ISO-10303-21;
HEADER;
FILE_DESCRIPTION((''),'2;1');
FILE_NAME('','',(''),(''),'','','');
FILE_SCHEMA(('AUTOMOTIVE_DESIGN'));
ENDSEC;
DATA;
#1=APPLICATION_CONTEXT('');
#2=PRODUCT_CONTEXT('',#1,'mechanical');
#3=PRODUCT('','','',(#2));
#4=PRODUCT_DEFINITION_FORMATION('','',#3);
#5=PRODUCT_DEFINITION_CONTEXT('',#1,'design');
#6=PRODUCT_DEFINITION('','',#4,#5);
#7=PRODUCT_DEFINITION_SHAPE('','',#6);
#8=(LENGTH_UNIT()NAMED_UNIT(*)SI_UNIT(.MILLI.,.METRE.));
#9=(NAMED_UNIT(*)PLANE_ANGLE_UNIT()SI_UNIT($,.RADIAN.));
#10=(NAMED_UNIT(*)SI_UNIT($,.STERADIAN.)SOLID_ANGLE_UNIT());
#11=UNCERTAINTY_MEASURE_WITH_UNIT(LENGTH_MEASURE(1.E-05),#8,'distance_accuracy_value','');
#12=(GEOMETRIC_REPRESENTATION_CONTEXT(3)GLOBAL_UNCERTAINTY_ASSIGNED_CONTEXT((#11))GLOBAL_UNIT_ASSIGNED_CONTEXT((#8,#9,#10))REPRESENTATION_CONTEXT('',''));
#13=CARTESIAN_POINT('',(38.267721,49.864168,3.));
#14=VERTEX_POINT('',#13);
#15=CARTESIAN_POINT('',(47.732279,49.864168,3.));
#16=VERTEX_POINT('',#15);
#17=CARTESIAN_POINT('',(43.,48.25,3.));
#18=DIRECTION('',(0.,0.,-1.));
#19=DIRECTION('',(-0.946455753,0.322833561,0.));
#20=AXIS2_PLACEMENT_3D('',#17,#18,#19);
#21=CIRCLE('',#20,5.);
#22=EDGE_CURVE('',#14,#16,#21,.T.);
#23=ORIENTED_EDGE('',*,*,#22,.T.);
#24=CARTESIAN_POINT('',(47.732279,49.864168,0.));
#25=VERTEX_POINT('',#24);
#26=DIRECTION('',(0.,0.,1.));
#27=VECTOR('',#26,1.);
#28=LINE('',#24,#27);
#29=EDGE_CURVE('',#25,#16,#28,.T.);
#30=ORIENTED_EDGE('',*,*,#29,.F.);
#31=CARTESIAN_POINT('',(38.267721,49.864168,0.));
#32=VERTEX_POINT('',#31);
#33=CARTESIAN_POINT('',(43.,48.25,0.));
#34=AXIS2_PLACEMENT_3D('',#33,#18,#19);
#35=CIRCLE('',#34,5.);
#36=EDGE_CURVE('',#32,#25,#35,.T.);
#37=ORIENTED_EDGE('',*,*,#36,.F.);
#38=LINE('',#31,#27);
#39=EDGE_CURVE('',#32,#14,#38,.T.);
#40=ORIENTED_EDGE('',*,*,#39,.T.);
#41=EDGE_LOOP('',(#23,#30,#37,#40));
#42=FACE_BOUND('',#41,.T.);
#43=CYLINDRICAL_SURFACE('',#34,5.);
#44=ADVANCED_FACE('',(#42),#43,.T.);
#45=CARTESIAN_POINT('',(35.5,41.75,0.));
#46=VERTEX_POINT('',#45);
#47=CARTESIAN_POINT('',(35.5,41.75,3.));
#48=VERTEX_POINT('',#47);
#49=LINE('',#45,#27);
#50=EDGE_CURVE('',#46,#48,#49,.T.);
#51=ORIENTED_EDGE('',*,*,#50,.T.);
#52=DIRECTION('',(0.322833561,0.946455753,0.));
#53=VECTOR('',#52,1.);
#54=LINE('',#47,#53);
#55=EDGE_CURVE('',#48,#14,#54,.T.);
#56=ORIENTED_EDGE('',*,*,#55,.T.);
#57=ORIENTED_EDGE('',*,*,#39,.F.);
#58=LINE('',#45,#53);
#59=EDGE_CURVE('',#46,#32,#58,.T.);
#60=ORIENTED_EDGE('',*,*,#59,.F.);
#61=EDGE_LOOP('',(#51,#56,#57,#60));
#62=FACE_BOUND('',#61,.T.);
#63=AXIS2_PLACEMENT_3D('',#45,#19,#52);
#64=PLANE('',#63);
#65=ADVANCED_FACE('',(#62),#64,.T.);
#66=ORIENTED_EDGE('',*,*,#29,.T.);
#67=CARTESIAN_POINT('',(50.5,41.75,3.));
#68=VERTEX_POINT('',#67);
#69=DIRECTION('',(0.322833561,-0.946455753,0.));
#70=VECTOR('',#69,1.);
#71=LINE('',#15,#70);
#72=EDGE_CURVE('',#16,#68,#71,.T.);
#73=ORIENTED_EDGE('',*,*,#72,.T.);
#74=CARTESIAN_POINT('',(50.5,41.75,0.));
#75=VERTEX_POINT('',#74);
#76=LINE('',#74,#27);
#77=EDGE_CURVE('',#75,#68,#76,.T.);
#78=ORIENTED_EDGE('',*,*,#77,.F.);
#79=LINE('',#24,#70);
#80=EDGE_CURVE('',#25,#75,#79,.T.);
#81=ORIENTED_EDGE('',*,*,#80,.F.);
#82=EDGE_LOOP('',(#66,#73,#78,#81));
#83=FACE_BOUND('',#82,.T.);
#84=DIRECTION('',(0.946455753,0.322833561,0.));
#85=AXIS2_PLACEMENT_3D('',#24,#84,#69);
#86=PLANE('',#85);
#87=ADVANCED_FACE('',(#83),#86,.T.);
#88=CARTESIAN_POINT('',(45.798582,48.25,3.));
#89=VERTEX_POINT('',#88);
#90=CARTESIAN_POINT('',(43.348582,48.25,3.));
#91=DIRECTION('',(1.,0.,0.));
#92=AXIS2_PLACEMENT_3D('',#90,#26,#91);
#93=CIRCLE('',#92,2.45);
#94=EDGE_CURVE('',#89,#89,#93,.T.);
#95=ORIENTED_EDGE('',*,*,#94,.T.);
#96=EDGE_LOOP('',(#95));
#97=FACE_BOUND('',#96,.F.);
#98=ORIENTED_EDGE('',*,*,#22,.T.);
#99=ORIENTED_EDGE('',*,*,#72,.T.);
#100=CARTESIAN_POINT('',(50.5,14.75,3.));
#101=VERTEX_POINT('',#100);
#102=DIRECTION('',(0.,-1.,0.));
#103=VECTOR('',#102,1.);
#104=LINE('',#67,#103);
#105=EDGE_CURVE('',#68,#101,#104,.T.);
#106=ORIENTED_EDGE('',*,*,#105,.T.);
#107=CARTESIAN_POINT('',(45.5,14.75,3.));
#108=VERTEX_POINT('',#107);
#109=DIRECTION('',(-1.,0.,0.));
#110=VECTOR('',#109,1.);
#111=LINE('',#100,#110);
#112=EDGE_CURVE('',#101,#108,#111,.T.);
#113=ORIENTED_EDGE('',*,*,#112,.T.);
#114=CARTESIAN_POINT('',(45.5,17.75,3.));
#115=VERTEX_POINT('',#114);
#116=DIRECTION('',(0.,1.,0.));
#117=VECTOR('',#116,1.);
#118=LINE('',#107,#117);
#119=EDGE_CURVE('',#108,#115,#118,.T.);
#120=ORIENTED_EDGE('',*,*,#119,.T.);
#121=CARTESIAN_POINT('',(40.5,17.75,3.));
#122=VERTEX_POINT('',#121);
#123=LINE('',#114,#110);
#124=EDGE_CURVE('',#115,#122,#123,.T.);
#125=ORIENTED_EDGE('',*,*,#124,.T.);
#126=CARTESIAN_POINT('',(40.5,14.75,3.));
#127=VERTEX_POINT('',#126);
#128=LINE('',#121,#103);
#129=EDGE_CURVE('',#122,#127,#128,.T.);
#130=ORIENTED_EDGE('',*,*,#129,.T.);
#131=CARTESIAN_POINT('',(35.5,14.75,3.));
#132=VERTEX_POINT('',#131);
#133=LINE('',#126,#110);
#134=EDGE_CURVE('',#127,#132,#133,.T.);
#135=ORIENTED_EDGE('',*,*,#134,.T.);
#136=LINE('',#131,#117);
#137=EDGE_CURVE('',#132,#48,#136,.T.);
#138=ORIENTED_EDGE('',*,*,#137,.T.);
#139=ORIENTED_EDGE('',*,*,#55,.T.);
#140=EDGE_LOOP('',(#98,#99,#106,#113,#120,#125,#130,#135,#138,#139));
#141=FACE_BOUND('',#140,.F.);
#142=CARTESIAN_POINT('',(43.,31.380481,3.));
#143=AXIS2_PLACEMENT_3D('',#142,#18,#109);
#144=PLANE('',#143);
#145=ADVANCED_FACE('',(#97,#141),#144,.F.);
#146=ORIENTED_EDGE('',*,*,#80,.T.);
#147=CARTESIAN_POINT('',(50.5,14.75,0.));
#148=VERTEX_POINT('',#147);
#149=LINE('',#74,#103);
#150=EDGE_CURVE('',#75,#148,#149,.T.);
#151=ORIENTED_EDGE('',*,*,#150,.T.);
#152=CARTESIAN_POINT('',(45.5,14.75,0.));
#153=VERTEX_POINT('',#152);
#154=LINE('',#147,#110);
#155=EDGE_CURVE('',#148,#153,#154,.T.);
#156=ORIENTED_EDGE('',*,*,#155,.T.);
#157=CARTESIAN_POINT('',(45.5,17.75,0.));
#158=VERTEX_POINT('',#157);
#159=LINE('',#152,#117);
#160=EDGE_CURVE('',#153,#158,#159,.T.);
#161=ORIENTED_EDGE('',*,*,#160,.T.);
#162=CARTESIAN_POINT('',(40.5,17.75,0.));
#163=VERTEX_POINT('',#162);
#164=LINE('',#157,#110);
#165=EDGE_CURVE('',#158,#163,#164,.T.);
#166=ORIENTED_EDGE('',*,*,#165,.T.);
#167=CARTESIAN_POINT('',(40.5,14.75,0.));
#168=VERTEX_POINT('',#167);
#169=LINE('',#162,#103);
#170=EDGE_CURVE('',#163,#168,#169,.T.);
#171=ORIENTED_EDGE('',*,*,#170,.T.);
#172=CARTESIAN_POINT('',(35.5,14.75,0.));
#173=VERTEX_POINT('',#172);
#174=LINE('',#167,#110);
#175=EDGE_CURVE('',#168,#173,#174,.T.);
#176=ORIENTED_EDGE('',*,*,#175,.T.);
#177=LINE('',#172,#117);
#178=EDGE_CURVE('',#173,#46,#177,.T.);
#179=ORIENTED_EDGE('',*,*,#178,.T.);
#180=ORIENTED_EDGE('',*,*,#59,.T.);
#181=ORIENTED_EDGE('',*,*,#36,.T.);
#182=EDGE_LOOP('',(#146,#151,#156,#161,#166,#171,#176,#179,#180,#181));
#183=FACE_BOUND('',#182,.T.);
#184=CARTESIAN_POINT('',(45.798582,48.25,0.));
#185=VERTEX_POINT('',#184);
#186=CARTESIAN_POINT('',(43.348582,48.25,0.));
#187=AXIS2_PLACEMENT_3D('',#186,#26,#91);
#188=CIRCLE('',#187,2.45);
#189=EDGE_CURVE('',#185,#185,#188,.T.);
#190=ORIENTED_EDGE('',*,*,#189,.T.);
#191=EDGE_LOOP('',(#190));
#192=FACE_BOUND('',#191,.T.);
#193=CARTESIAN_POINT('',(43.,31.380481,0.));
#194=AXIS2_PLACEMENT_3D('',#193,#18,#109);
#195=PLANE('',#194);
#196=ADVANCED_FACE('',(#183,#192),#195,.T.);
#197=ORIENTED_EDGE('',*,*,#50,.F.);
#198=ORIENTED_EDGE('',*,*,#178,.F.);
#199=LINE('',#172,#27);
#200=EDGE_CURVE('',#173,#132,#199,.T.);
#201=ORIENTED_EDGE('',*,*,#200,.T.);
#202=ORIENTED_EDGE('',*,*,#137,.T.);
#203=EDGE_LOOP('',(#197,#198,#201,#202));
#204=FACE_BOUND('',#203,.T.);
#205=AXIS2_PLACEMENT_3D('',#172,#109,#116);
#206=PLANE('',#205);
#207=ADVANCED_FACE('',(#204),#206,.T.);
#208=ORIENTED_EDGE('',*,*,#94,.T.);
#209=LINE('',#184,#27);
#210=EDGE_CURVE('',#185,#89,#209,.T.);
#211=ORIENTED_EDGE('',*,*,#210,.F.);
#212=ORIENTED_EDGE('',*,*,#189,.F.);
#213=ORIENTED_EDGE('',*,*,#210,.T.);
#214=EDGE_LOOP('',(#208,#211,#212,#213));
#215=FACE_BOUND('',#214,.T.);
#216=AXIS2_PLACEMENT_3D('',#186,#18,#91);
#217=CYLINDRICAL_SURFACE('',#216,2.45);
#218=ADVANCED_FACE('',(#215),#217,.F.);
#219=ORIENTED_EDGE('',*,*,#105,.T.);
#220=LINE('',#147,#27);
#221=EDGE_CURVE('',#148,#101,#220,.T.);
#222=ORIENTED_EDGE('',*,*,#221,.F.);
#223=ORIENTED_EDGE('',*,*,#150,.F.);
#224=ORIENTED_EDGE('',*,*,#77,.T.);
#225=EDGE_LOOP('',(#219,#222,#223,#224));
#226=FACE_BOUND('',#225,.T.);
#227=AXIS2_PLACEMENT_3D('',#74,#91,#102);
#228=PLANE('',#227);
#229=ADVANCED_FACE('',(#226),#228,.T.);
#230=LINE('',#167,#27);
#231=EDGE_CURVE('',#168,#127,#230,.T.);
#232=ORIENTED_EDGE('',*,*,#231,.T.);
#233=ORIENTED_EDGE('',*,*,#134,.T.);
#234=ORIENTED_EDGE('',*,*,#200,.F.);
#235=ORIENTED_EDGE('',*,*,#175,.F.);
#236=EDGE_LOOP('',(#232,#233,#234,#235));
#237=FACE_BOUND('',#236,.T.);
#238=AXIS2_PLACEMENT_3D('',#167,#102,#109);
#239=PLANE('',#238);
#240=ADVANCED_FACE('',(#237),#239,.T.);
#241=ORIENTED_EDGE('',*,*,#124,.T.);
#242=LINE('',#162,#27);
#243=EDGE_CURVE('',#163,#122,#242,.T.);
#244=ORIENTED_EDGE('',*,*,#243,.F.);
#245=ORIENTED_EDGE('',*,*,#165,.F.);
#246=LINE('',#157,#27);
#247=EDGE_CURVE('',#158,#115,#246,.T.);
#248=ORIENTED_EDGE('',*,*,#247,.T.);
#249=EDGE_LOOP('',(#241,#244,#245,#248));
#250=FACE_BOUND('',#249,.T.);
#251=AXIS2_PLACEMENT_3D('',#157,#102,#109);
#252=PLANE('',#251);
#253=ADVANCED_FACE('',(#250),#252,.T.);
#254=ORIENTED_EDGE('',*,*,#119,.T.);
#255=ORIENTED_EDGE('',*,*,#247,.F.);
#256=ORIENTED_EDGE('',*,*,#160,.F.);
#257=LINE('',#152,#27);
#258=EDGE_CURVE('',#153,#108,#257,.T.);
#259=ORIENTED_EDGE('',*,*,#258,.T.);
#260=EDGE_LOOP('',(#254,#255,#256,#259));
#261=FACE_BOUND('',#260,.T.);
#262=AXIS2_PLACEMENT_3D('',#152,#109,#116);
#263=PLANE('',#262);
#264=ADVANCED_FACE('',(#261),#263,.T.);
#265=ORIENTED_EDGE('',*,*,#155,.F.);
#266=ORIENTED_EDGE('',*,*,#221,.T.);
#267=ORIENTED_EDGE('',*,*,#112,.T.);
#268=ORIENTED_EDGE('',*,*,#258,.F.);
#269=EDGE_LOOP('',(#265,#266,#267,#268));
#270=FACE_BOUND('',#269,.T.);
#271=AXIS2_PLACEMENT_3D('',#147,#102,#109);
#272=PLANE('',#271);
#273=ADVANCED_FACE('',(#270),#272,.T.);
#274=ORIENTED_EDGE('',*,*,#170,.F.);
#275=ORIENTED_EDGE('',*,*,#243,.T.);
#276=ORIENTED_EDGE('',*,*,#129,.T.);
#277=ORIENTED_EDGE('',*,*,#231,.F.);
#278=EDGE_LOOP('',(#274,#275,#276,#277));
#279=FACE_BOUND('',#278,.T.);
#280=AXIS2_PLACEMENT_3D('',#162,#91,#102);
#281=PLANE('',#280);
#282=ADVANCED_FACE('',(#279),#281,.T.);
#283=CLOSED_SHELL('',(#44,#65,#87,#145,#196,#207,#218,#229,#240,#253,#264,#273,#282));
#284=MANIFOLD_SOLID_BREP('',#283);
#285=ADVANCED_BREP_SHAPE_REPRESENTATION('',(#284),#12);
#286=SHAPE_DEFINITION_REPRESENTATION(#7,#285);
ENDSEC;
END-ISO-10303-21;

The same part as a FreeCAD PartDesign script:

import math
import FreeCAD as App
import Part
import Sketcher

doc = App.newDocument("Part")
params = doc.addObject("Spreadsheet::Sheet", "Params")
for row, (alias, value) in enumerate([
    ("sketch1_radius", "5 mm"),
    ("sketch1_diameter", "4.9 mm"),
    ("sketch1_width", "5 mm"),
    ("sketch1_height", "27 mm"),
    ("sketch1_height2", "3 mm"),
    ("pad1_length", "3 mm"),
], start=1):
    params.set(f"A{row}", alias)
    params.set(f"B{row}", "=" + value)
    params.setAlias(f"B{row}", alias)

body = doc.addObject("PartDesign::Body", "Body")

# Sketch on XY plane
sketch1 = doc.addObject("Sketcher::SketchObject", "Sketch")
body.addObject(sketch1)
sketch1.AttachmentSupport = (doc.XY_Plane, [""])
sketch1.MapMode = "FlatFace"
sketch1.addGeometry(Part.LineSegment(App.Vector(50.5, 41.75, 0), App.Vector(47.732279, 49.864168, 0)), False)
sketch1.addGeometry(Part.ArcOfCircle(Part.Circle(App.Vector(43, 48.25, 0), App.Vector(0, 0, 1), 5), math.radians(18.834373), math.radians(161.165627)), False)
sketch1.addGeometry(Part.LineSegment(App.Vector(38.267721, 49.864168, 0), App.Vector(35.5, 41.75, 0)), False)
sketch1.addGeometry(Part.LineSegment(App.Vector(35.5, 41.75, 0), App.Vector(35.5, 14.75, 0)), False)
sketch1.addGeometry(Part.LineSegment(App.Vector(35.5, 14.75, 0), App.Vector(40.5, 14.75, 0)), False)
sketch1.addGeometry(Part.LineSegment(App.Vector(40.5, 14.75, 0), App.Vector(40.5, 17.75, 0)), False)
sketch1.addGeometry(Part.LineSegment(App.Vector(40.5, 17.75, 0), App.Vector(45.5, 17.75, 0)), False)
sketch1.addGeometry(Part.LineSegment(App.Vector(45.5, 17.75, 0), App.Vector(45.5, 14.75, 0)), False)
sketch1.addGeometry(Part.LineSegment(App.Vector(45.5, 14.75, 0), App.Vector(50.5, 14.75, 0)), False)
sketch1.addGeometry(Part.LineSegment(App.Vector(50.5, 14.75, 0), App.Vector(50.5, 41.75, 0)), False)
sketch1.addGeometry(Part.Circle(App.Vector(43.348582, 48.25, 0), App.Vector(0, 0, 1), 2.45), False)
sketch1.addConstraint(Sketcher.Constraint("Tangent", 0, 2, 1, 1))
sketch1.addConstraint(Sketcher.Constraint("Tangent", 1, 2, 2, 1))
sketch1.addConstraint(Sketcher.Constraint("Coincident", 2, 2, 3, 1))
sketch1.addConstraint(Sketcher.Constraint("Coincident", 3, 2, 4, 1))
sketch1.addConstraint(Sketcher.Constraint("Coincident", 4, 2, 5, 1))
sketch1.addConstraint(Sketcher.Constraint("Coincident", 5, 2, 6, 1))
sketch1.addConstraint(Sketcher.Constraint("Coincident", 6, 2, 7, 1))
sketch1.addConstraint(Sketcher.Constraint("Coincident", 7, 2, 8, 1))
sketch1.addConstraint(Sketcher.Constraint("Coincident", 8, 2, 9, 1))
sketch1.addConstraint(Sketcher.Constraint("Coincident", 9, 2, 0, 1))
sketch1.addConstraint(Sketcher.Constraint("Vertical", 3))
sketch1.addConstraint(Sketcher.Constraint("Horizontal", 4))
sketch1.addConstraint(Sketcher.Constraint("Vertical", 5))
sketch1.addConstraint(Sketcher.Constraint("Horizontal", 6))
sketch1.addConstraint(Sketcher.Constraint("Vertical", 7))
sketch1.addConstraint(Sketcher.Constraint("Horizontal", 8))
sketch1.addConstraint(Sketcher.Constraint("Vertical", 9))
sketch1.addConstraint(Sketcher.Constraint("Horizontal", 1, 3, 10, 3))
sketch1.addConstraint(Sketcher.Constraint("Horizontal", 0, 2, 1, 2))
sketch1.addConstraint(Sketcher.Constraint("Horizontal", 4, 2, 7, 2))
sketch1.addConstraint(Sketcher.Constraint("Horizontal", 2, 2, 9, 2))
sketch1.addConstraint(Sketcher.Constraint("Equal", 4, 6))
sketch1.addConstraint(Sketcher.Constraint("Equal", 6, 8))
sketch1.addConstraint(Sketcher.Constraint("Radius", 1, 5.0))
sketch1.addConstraint(Sketcher.Constraint("Diameter", 10, 4.9))
sketch1.addConstraint(Sketcher.Constraint("DistanceX", 4, 1, 4, 2, 5.0))
sketch1.addConstraint(Sketcher.Constraint("DistanceY", 3, 2, 3, 1, 27.0))
sketch1.addConstraint(Sketcher.Constraint("DistanceY", 5, 1, 5, 2, 3.0))
sketch1.addConstraint(Sketcher.Constraint("DistanceX", -1, 1, 1, 3, 43.0))
sketch1.addConstraint(Sketcher.Constraint("DistanceY", 2, 2, 1, 3, 6.5))
sketch1.addConstraint(Sketcher.Constraint("DistanceY", -1, 1, 1, 3, 48.25))
sketch1.addConstraint(Sketcher.Constraint("DistanceX", 1, 2, 10, 3, 5.080861))
sketch1.setExpression("Constraints[23]", "Params.sketch1_radius")
sketch1.setExpression("Constraints[24]", "Params.sketch1_diameter")
sketch1.setExpression("Constraints[25]", "Params.sketch1_width")
sketch1.setExpression("Constraints[26]", "Params.sketch1_height")
sketch1.setExpression("Constraints[27]", "Params.sketch1_height2")
pad1 = doc.addObject("PartDesign::Pad", "Pad")
body.addObject(pad1)
pad1.Profile = sketch1
pad1.setExpression("Length", "Params.pad1_length")

doc.recompute()
